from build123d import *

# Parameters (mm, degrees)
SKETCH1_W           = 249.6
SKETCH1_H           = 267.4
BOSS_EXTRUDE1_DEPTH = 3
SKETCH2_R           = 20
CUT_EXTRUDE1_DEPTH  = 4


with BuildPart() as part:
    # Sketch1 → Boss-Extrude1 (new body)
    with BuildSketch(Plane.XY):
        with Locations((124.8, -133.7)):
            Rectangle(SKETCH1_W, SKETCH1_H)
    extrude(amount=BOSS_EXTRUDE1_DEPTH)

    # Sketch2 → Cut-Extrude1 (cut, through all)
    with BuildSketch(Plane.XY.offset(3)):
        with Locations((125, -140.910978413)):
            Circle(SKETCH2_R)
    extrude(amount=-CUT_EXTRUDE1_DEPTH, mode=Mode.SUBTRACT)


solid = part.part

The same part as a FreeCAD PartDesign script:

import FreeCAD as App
import Part
import Sketcher

doc = App.newDocument("Part")
body = doc.addObject("PartDesign::Body", "Body")

sketch1 = doc.addObject("Sketcher::SketchObject", "Sketch")
body.addObject(sketch1)
sketch1.AttachmentSupport = (doc.XY_Plane, [""])
sketch1.MapMode = "FlatFace"
sketch1.addGeometry(Part.LineSegment(App.Vector(0, 0, 0), App.Vector(0, -267, 0)), False)
sketch1.addGeometry(Part.LineSegment(App.Vector(0, -267, 0), App.Vector(250, -267, 0)), False)
sketch1.addGeometry(Part.LineSegment(App.Vector(250, -267, 0), App.Vector(250, 0, 0)), False)
sketch1.addGeometry(Part.LineSegment(App.Vector(250, 0, 0), App.Vector(0, 0, 0)), False)
sketch1.addConstraint(Sketcher.Constraint("Coincident", 0, 2, 1, 1))
sketch1.addConstraint(Sketcher.Constraint("Coincident", 1, 2, 2, 1))
sketch1.addConstraint(Sketcher.Constraint("Coincident", 2, 2, 3, 1))
sketch1.addConstraint(Sketcher.Constraint("Coincident", 3, 2, 0, 1))
sketch1.addConstraint(Sketcher.Constraint("Vertical", 0))
sketch1.addConstraint(Sketcher.Constraint("Horizontal", 1))
sketch1.addConstraint(Sketcher.Constraint("Vertical", 2))
sketch1.addConstraint(Sketcher.Constraint("Horizontal", 3))
sketch1.addConstraint(Sketcher.Constraint("Coincident", 3, 2, -1, 1))
sketch1.addConstraint(Sketcher.Constraint("DistanceX", 1, 1, 1, 2, 249.6))
sketch1.addConstraint(Sketcher.Constraint("DistanceY", 0, 2, 0, 1, 267.4))
pad1 = doc.addObject("PartDesign::Pad", "Pad")
body.addObject(pad1)
pad1.Profile = sketch1
pad1.Length = 3

sketch2 = doc.addObject("Sketcher::SketchObject", "Sketch001")
body.addObject(sketch2)
sketch2.AttachmentSupport = (doc.XY_Plane, [""])
sketch2.MapMode = "FlatFace"
sketch2.AttachmentOffset = App.Placement(App.Vector(0, 0, 3), App.Rotation())
sketch2.addGeometry(Part.Circle(App.Vector(125, -141, 0), App.Vector(0, 0, 1), 20), False)
sketch2.addConstraint(Sketcher.Constraint("Diameter", 0, 40.0))
sketch2.addConstraint(Sketcher.Constraint("DistanceX", -1, 1, 0, 3, 125.0))
sketch2.addConstraint(Sketcher.Constraint("DistanceY", 0, 3, -1, 1, 140.910978))
pocket1 = doc.addObject("PartDesign::Pocket", "Pocket")
body.addObject(pocket1)
pocket1.Profile = sketch2
pocket1.Type = "ThroughAll"

doc.recompute()
